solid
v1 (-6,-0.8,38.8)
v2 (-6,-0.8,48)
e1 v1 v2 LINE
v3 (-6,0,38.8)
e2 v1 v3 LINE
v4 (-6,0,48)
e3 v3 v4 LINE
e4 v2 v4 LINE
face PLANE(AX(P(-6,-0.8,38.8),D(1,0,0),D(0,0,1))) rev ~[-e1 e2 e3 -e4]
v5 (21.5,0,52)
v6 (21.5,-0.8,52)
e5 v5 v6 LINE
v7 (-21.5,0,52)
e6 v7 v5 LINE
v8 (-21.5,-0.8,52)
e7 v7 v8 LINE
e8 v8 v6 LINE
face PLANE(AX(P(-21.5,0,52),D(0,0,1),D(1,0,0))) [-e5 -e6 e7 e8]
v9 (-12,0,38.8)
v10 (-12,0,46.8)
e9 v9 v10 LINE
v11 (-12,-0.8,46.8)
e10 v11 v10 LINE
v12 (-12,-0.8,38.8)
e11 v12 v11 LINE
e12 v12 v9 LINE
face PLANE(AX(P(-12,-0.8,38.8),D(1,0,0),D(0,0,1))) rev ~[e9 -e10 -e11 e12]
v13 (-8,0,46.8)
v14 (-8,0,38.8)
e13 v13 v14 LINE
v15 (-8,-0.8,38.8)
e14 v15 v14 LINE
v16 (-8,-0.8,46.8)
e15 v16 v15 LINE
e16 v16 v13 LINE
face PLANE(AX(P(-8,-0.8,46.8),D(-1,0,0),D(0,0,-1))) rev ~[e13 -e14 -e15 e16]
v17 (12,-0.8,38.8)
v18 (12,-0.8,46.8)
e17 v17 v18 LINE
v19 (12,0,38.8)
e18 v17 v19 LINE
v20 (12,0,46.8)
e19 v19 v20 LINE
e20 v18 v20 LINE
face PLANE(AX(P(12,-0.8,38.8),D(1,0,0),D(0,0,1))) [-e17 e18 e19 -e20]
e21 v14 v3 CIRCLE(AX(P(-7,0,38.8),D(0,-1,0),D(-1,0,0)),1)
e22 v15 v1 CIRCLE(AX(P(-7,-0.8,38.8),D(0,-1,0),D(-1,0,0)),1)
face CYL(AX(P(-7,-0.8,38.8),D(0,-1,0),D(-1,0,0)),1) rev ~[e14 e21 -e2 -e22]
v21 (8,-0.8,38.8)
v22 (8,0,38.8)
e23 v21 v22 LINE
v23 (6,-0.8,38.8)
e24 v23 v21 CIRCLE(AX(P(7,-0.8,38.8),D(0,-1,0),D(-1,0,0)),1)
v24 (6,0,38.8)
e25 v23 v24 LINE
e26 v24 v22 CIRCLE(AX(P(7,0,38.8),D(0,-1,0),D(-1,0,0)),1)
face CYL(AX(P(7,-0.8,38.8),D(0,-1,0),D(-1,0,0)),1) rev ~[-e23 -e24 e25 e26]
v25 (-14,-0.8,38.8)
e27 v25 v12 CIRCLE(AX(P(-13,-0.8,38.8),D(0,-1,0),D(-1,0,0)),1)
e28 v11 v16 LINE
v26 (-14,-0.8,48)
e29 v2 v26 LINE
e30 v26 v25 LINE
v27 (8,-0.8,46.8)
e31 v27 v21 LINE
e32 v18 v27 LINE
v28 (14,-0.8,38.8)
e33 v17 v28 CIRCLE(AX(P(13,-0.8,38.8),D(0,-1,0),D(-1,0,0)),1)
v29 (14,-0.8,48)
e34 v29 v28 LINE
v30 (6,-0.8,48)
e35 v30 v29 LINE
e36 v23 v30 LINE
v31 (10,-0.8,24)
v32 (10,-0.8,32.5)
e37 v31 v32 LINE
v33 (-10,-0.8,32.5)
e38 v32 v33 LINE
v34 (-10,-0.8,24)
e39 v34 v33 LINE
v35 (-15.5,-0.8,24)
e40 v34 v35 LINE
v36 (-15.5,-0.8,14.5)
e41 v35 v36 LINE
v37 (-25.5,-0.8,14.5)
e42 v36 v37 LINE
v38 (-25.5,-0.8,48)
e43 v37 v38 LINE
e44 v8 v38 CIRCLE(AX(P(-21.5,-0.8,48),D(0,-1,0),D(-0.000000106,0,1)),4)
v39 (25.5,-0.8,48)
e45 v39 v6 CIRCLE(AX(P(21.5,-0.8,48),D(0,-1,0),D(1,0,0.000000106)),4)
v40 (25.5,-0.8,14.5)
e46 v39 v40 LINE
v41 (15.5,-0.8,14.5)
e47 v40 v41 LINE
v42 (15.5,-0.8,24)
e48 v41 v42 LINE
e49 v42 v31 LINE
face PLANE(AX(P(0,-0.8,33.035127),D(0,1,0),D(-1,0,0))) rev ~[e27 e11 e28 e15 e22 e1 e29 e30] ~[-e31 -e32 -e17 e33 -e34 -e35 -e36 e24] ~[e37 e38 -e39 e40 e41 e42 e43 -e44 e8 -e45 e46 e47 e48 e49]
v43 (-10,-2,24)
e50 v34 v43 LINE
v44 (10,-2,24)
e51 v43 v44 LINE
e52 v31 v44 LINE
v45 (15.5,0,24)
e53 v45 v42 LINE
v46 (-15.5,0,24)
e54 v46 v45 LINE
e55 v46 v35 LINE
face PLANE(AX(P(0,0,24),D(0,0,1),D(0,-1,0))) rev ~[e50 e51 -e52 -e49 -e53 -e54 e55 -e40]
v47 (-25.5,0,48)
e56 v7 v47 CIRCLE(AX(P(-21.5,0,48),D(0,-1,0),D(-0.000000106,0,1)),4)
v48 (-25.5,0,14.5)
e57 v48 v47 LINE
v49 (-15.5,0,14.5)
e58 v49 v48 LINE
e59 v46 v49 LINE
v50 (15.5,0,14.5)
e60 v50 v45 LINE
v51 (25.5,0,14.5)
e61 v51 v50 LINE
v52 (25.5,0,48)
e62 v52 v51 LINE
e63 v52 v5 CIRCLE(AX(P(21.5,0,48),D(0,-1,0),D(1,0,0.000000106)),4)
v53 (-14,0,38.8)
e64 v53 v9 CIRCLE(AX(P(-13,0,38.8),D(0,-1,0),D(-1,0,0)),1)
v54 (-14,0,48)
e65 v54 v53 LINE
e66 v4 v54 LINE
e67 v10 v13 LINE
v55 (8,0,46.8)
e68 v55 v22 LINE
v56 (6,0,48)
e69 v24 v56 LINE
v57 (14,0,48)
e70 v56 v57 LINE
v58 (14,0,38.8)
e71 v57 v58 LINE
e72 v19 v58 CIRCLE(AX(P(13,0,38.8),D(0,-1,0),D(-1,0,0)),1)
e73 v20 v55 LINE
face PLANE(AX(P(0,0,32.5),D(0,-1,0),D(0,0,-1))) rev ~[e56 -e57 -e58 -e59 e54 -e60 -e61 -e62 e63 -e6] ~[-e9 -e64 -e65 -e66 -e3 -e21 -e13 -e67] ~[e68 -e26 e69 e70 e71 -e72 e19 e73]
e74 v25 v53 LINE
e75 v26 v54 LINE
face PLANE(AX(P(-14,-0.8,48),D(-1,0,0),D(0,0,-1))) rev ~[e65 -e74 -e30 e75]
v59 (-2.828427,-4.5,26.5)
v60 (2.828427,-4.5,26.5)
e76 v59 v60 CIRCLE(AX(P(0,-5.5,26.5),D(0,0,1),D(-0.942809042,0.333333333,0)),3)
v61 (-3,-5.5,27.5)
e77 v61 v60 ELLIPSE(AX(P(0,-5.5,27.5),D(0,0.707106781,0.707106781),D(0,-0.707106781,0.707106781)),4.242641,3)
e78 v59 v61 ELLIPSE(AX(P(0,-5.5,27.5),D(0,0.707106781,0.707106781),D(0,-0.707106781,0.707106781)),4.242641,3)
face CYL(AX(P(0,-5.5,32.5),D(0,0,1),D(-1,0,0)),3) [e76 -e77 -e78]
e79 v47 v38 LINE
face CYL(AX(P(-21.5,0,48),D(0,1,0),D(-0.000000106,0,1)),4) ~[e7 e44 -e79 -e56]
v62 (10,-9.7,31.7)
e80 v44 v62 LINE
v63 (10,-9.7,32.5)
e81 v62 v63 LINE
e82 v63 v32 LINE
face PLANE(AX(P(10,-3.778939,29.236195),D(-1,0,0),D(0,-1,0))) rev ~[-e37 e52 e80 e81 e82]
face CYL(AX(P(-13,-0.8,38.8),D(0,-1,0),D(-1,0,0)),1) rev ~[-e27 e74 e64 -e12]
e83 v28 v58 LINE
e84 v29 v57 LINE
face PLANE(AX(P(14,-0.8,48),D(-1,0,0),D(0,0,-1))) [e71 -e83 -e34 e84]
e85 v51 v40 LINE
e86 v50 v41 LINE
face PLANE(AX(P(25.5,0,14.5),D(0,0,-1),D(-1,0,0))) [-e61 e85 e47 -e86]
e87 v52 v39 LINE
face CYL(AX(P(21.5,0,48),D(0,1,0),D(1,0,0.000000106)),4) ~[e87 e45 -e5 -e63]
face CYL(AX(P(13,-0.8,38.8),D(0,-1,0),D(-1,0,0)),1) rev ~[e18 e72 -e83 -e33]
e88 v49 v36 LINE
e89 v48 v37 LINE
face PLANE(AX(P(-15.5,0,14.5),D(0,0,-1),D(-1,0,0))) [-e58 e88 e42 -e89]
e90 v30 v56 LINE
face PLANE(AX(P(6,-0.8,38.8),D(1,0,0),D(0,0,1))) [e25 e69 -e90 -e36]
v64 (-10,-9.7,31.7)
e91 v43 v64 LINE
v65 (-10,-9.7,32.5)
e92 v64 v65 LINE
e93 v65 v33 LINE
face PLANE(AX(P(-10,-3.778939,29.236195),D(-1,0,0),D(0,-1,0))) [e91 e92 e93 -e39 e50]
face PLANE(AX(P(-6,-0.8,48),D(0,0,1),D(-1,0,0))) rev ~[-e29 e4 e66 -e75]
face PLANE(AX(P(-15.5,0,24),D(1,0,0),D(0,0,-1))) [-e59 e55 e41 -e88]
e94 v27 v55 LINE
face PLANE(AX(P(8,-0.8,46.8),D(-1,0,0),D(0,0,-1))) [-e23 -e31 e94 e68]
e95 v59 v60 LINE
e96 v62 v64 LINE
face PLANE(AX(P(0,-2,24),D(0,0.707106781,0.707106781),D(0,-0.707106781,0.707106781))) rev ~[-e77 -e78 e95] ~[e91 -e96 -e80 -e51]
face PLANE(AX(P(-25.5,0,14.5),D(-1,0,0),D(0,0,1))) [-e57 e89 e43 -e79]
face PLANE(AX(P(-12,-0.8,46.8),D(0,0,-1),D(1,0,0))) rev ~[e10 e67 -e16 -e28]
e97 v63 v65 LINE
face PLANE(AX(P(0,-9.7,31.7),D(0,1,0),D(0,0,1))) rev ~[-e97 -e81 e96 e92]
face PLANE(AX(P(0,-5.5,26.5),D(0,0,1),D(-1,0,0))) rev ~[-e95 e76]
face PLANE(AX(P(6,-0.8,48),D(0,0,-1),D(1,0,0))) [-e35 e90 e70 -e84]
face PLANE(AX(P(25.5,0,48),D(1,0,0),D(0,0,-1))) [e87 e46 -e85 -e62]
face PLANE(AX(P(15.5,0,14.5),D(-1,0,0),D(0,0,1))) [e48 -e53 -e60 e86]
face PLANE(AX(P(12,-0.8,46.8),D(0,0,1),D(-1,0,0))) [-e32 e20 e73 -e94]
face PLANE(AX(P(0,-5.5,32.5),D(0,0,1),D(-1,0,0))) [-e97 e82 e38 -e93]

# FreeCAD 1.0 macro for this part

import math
import FreeCAD as App
import Part
import Sketcher
Q = App.Units.Quantity


def add_polygon(sketch, points):
    """Adds a closed chain of lines whose ends are joined by coincident constraints."""
    first, n = sketch.GeometryCount, len(points)
    for a, b in zip(points, points[1:] + points[:1]):
        sketch.addGeometry(Part.LineSegment(App.Vector(*a, 0), App.Vector(*b, 0)), False)
    for i in range(n):
        sketch.addConstraint(Sketcher.Constraint("Coincident", first + i, 2, first + (i + 1) % n, 1))

doc = App.newDocument("Part")
body = doc.addObject("PartDesign::Body", "Body")

# Sketch on XZ plane
sketch1 = doc.addObject("Sketcher::SketchObject", "Sketch")
body.addObject(sketch1)
sketch1.AttachmentSupport = (doc.XZ_Plane, [""])
sketch1.MapMode = "FlatFace"
sketch1.addGeometry(Part.LineSegment(App.Vector(-25.5, 48, 0), App.Vector(-25.5, 14.5, 0)), False)
sketch1.addGeometry(Part.LineSegment(App.Vector(-25.5, 14.5, 0), App.Vector(-15.5, 14.5, 0)), False)
sketch1.addGeometry(Part.LineSegment(App.Vector(-15.5, 14.5, 0), App.Vector(-15.5, 24, 0)), False)
sketch1.addGeometry(Part.LineSegment(App.Vector(-15.5, 24, 0), App.Vector(15.5, 24, 0)), False)
sketch1.addGeometry(Part.LineSegment(App.Vector(15.5, 24, 0), App.Vector(15.5, 14.5, 0)), False)
sketch1.addGeometry(Part.LineSegment(App.Vector(15.5, 14.5, 0), App.Vector(25.5, 14.5, 0)), False)
sketch1.addGeometry(Part.LineSegment(App.Vector(25.5, 14.5, 0), App.Vector(25.5, 48, 0)), False)
sketch1.addGeometry(Part.ArcOfCircle(Part.Circle(App.Vector(21.5, 48, 0), App.Vector(0, 0, 1), 4), math.radians(0), math.radians(90)), False)
sketch1.addGeometry(Part.LineSegment(App.Vector(21.5, 52, 0), App.Vector(-21.5, 52, 0)), False)
sketch1.addGeometry(Part.ArcOfCircle(Part.Circle(App.Vector(-21.5, 48, 0), App.Vector(0, 0, 1), 4), math.radians(90), math.radians(180)), False)
sketch1.addConstraint(Sketcher.Constraint("Coincident", 0, 2, 1, 1))
sketch1.addConstraint(Sketcher.Constraint("Coincident", 1, 2, 2, 1))
sketch1.addConstraint(Sketcher.Constraint("Coincident", 2, 2, 3, 1))
sketch1.addConstraint(Sketcher.Constraint("Coincident", 3, 2, 4, 1))
sketch1.addConstraint(Sketcher.Constraint("Coincident", 4, 2, 5, 1))
sketch1.addConstraint(Sketcher.Constraint("Coincident", 5, 2, 6, 1))
sketch1.addConstraint(Sketcher.Constraint("Tangent", 6, 2, 7, 1))
sketch1.addConstraint(Sketcher.Constraint("Tangent", 7, 2, 8, 1))
sketch1.addConstraint(Sketcher.Constraint("Tangent", 8, 2, 9, 1))
sketch1.addConstraint(Sketcher.Constraint("Tangent", 9, 2, 0, 1))
sketch1.addConstraint(Sketcher.Constraint("Vertical", 0))
sketch1.addConstraint(Sketcher.Constraint("Horizontal", 1))
sketch1.addConstraint(Sketcher.Constraint("Vertical", 2))
sketch1.addConstraint(Sketcher.Constraint("Horizontal", 3))
sketch1.addConstraint(Sketcher.Constraint("Vertical", 4))
sketch1.addConstraint(Sketcher.Constraint("Horizontal", 5))
sketch1.addConstraint(Sketcher.Constraint("Vertical", 6))
sketch1.addConstraint(Sketcher.Constraint("Horizontal", 8))
sketch1.addConstraint(Sketcher.Constraint("Equal", 7, 9))
sketch1.addConstraint(Sketcher.Constraint("Symmetric", 1, 2, 4, 2, -2))
sketch1.addConstraint(Sketcher.Constraint("Equal", 1, 5))
sketch1.addConstraint(Sketcher.Constraint("Radius", 7, Q("4 mm")))
sketch1.addConstraint(Sketcher.Constraint("DistanceX", 1, 1, 1, 2, Q("10 mm")))
sketch1.addConstraint(Sketcher.Constraint("DistanceX", 3, 1, 3, 2, Q("31 mm")))
sketch1.addConstraint(Sketcher.Constraint("DistanceY", 0, 2, 0, 1, Q("33.5 mm")))
sketch1.addConstraint(Sketcher.Constraint("DistanceY", 2, 1, 2, 2, Q("9.5 mm")))
sketch1.addConstraint(Sketcher.Constraint("DistanceY", -1, 1, 7, 3, Q("48 mm")))
pad1 = doc.addObject("PartDesign::Pad", "Pad")
body.addObject(pad1)
pad1.Profile = sketch1
pad1.Length = 0.8

# Sketch on YZ plane
sketch2 = doc.addObject("Sketcher::SketchObject", "Sketch001")
body.addObject(sketch2)
sketch2.AttachmentSupport = (doc.YZ_Plane, [""])
sketch2.MapMode = "FlatFace"
add_polygon(sketch2, [(-9.7, 31.7), (-2, 24), (0, 24), (0, 32.5), (-9.7, 32.5)])  # lines 0-4
sketch2.addConstraint(Sketcher.Constraint("Horizontal", 1))
sketch2.addConstraint(Sketcher.Constraint("Vertical", 2))
sketch2.addConstraint(Sketcher.Constraint("Horizontal", 3))
sketch2.addConstraint(Sketcher.Constraint("Vertical", 4))
sketch2.addConstraint(Sketcher.Constraint("PointOnObject", 1, 2, -2))
sketch2.addConstraint(Sketcher.Constraint("DistanceX", 1, 1, 1, 2, Q("2 mm")))
sketch2.addConstraint(Sketcher.Constraint("Angle", 0, Q("-45 deg")))
sketch2.addConstraint(Sketcher.Constraint("DistanceX", 3, 2, 3, 1, Q("9.7 mm")))
sketch2.addConstraint(Sketcher.Constraint("DistanceY", 2, 1, 2, 2, Q("8.5 mm")))
sketch2.addConstraint(Sketcher.Constraint("DistanceY", -1, 1, 0, 2, Q("24 mm")))
pad2 = doc.addObject("PartDesign::Pad", "Pad001")
body.addObject(pad2)
pad2.Profile = sketch2
pad2.Length = 20
pad2.Midplane = True

# Sketch on XY plane
sketch3 = doc.addObject("Sketcher::SketchObject", "Sketch002")
body.addObject(sketch3)
sketch3.AttachmentSupport = (doc.XY_Plane, [""])
sketch3.MapMode = "FlatFace"
sketch3.AttachmentOffset = App.Placement(App.Vector(0, 0, 32.5), App.Rotation())
sketch3.addGeometry(Part.Circle(App.Vector(0, -5.5, 0), App.Vector(0, 0, 1), 3), False)
sketch3.addConstraint(Sketcher.Constraint("PointOnObject", 0, 3, -2))
sketch3.addConstraint(Sketcher.Constraint("Diameter", 0, Q("6 mm")))
sketch3.addConstraint(Sketcher.Constraint("DistanceY", 0, 3, -1, 1, Q("5.5 mm")))
pad3 = doc.addObject("PartDesign::Pad", "Pad002")
body.addObject(pad3)
pad3.Profile = sketch3
pad3.Length = 6
pad3.Reversed = True

# Sketch on XZ plane
sketch4 = doc.addObject("Sketcher::SketchObject", "Sketch003")
body.addObject(sketch4)
sketch4.AttachmentSupport = (doc.XZ_Plane, [""])
sketch4.MapMode = "FlatFace"
sketch4.AttachmentOffset = App.Placement(App.Vector(0, 0, 0.8), App.Rotation())
sketch4.addGeometry(Part.LineSegment(App.Vector(-12, 38.8, 0), App.Vector(-12, 46.8, 0)), False)
sketch4.addGeometry(Part.LineSegment(App.Vector(-12, 46.8, 0), App.Vector(-8, 46.8, 0)), False)
sketch4.addGeometry(Part.LineSegment(App.Vector(-8, 46.8, 0), App.Vector(-8, 38.8, 0)), False)
sketch4.addGeometry(Part.ArcOfCircle(Part.Circle(App.Vector(-7, 38.8, 0), App.Vector(0, 0, 1), 1), math.radians(180), math.radians(360)), False)
sketch4.addGeometry(Part.LineSegment(App.Vector(-6, 38.8, 0), App.Vector(-6, 48, 0)), False)
sketch4.addGeometry(Part.LineSegment(App.Vector(-6, 48, 0), App.Vector(-14, 48, 0)), False)
sketch4.addGeometry(Part.LineSegment(App.Vector(-14, 48, 0), App.Vector(-14, 38.8, 0)), False)
sketch4.addGeometry(Part.ArcOfCircle(Part.Circle(App.Vector(-13, 38.8, 0), App.Vector(0, 0, 1), 1), math.radians(180), math.radians(360)), False)
sketch4.addGeometry(Part.LineSegment(App.Vector(12, 46.8, 0), App.Vector(12, 38.8, 0)), False)
sketch4.addGeometry(Part.ArcOfCircle(Part.Circle(App.Vector(13, 38.8, 0), App.Vector(0, 0, 1), 1), math.radians(180), math.radians(360)), False)
sketch4.addGeometry(Part.LineSegment(App.Vector(14, 38.8, 0), App.Vector(14, 48, 0)), False)
sketch4.addGeometry(Part.LineSegment(App.Vector(14, 48, 0), App.Vector(6, 48, 0)), False)
sketch4.addGeometry(Part.LineSegment(App.Vector(6, 48, 0), App.Vector(6, 38.8, 0)), False)
sketch4.addGeometry(Part.ArcOfCircle(Part.Circle(App.Vector(7, 38.8, 0), App.Vector(0, 0, 1), 1), math.radians(180), math.radians(360)), False)
sketch4.addGeometry(Part.LineSegment(App.Vector(8, 38.8, 0), App.Vector(8, 46.8, 0)), False)
sketch4.addGeometry(Part.LineSegment(App.Vector(8, 46.8, 0), App.Vector(12, 46.8, 0)), False)
sketch4.addConstraint(Sketcher.Constraint("Coincident", 0, 2, 1, 1))
sketch4.addConstraint(Sketcher.Constraint("Coincident", 1, 2, 2, 1))
sketch4.addConstraint(Sketcher.Constraint("Tangent", 2, 2, 3, 1))
sketch4.addConstraint(Sketcher.Constraint("Tangent", 3, 2, 4, 1))
sketch4.addConstraint(Sketcher.Constraint("Coincident", 4, 2, 5, 1))
sketch4.addConstraint(Sketcher.Constraint("Coincident", 5, 2, 6, 1))
sketch4.addConstraint(Sketcher.Constraint("Tangent", 6, 2, 7, 1))
sketch4.addConstraint(Sketcher.Constraint("Tangent", 7, 2, 0, 1))
sketch4.addConstraint(Sketcher.Constraint("Tangent", 8, 2, 9, 1))
sketch4.addConstraint(Sketcher.Constraint("Tangent", 9, 2, 10, 1))
sketch4.addConstraint(Sketcher.Constraint("Coincident", 10, 2, 11, 1))
sketch4.addConstraint(Sketcher.Constraint("Coincident", 11, 2, 12, 1))
sketch4.addConstraint(Sketcher.Constraint("Tangent", 12, 2, 13, 1))
sketch4.addConstraint(Sketcher.Constraint("Tangent", 13, 2, 14, 1))
sketch4.addConstraint(Sketcher.Constraint("Coincident", 14, 2, 15, 1))
sketch4.addConstraint(Sketcher.Constraint("Coincident", 15, 2, 8, 1))
sketch4.addConstraint(Sketcher.Constraint("Vertical", 0))
sketch4.addConstraint(Sketcher.Constraint("Horizontal", 1))
sketch4.addConstraint(Sketcher.Constraint("Vertical", 2))
sketch4.addConstraint(Sketcher.Constraint("Vertical", 4))
sketch4.addConstraint(Sketcher.Constraint("Horizontal", 5))
sketch4.addConstraint(Sketcher.Constraint("Vertical", 6))
sketch4.addConstraint(Sketcher.Constraint("Vertical", 8))
sketch4.addConstraint(Sketcher.Constraint("Vertical", 10))
sketch4.addConstraint(Sketcher.Constraint("Horizontal", 11))
sketch4.addConstraint(Sketcher.Constraint("Vertical", 12))
sketch4.addConstraint(Sketcher.Constraint("Vertical", 14))
sketch4.addConstraint(Sketcher.Constraint("Horizontal", 15))
sketch4.addConstraint(Sketcher.Constraint("Equal", 3, 7))
sketch4.addConstraint(Sketcher.Constraint("Equal", 7, 9))
sketch4.addConstraint(Sketcher.Constraint("Equal", 9, 13))
sketch4.addConstraint(Sketcher.Constraint("Symmetric", 7, 3, 9, 3, -2))
sketch4.addConstraint(Sketcher.Constraint("Symmetric", 3, 3, 13, 3, -2))
sketch4.addConstraint(Sketcher.Constraint("Horizontal", 3, 3, 7, 3))
sketch4.addConstraint(Sketcher.Constraint("Horizontal", 5, 2, 10, 2))
sketch4.addConstraint(Sketcher.Constraint("Horizontal", 1, 2, 14, 2))
sketch4.addConstraint(Sketcher.Constraint("Equal", 11, 0))
sketch4.addConstraint(Sketcher.Constraint("Radius", 3, Q("1 mm")))
sketch4.addConstraint(Sketcher.Constraint("DistanceX", 1, 1, 1, 2, Q("4 mm")))
sketch4.addConstraint(Sketcher.Constraint("DistanceY", 4, 1, 4, 2, Q("9.2 mm")))
sketch4.addConstraint(Sketcher.Constraint("DistanceX", 3, 3, -1, 1, Q("7 mm")))
sketch4.addConstraint(Sketcher.Constraint("DistanceY", -1, 1, 4, 2, Q("48 mm")))
pocket1 = doc.addObject("PartDesign::Pocket", "Pocket")
body.addObject(pocket1)
pocket1.Profile = sketch4
pocket1.Length = 5

doc.recompute()
